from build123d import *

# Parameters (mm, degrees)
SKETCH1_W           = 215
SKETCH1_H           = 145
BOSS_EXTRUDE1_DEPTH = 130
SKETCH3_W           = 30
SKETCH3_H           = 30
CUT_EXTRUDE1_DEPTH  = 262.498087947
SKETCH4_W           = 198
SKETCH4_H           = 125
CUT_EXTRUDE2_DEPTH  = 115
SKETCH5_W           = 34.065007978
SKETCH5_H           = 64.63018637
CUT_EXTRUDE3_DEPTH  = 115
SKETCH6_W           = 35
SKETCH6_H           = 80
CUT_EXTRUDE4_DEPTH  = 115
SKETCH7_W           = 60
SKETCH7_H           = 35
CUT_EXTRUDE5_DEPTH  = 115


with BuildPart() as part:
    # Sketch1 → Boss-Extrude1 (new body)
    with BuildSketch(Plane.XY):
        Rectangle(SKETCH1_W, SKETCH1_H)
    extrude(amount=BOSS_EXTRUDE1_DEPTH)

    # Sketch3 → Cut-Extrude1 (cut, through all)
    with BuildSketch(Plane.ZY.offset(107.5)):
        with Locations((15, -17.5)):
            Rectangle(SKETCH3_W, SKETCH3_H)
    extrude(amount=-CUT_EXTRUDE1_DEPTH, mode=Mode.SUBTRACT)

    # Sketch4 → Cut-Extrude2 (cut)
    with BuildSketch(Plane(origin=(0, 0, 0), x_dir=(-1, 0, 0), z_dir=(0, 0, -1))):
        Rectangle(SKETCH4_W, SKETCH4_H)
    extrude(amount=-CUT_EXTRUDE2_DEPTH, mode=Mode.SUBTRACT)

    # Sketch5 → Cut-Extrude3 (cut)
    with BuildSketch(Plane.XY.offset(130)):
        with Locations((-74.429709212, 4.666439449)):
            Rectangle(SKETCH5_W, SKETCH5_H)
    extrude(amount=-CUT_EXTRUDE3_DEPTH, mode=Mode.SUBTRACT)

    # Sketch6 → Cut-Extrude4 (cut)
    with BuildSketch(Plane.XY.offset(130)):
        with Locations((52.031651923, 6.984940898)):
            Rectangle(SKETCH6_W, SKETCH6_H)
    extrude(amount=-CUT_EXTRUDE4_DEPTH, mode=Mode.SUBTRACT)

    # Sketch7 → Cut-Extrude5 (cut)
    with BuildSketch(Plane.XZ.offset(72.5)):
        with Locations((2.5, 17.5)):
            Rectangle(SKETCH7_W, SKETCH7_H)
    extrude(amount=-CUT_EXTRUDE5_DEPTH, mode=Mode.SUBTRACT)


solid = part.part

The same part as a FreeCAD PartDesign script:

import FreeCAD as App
import Part
import Sketcher
from FreeCAD import Vector


def add_polygon(sketch, points):
    """Adds a closed chain of lines whose ends are joined by coincident constraints."""
    first, n = sketch.GeometryCount, len(points)
    for a, b in zip(points, points[1:] + points[:1]):
        sketch.addGeometry(Part.LineSegment(App.Vector(*a, 0), App.Vector(*b, 0)), False)
    for i in range(n):
        sketch.addConstraint(Sketcher.Constraint("Coincident", first + i, 2, first + (i + 1) % n, 1))

doc = App.newDocument("Part")
body = doc.addObject("PartDesign::Body", "Body")

# Sketch on XY plane
sketch1 = body.newObject("Sketcher::SketchObject", "Sketch")
sketch1.AttachmentSupport = (doc.getObject("XY_Plane"), [""])
sketch1.MapMode = "FlatFace"
add_polygon(sketch1, [(-108, 72), (-108, -72), (108, -72), (108, 72)])  # lines 0-3
sketch1.addConstraint([
    Sketcher.Constraint("Vertical", 0),
    Sketcher.Constraint("Horizontal", 1),
    Sketcher.Constraint("Vertical", 2),
    Sketcher.Constraint("Horizontal", 3),
    Sketcher.Constraint("Symmetric", 0, 2, 2, 2, -1, 1),
    Sketcher.Constraint("DistanceX", 1, 1, 1, 2, 215.0),
    Sketcher.Constraint("DistanceY", 0, 2, 0, 1, 145.0),
])
pad1 = body.newObject("PartDesign::Pad", "Pad")
pad1.Profile = sketch1
pad1.Length = 130

# Sketch on YZ plane
sketch2 = body.newObject("Sketcher::SketchObject", "Sketch001")
sketch2.AttachmentSupport = (doc.getObject("YZ_Plane"), [""])
sketch2.MapMode = "FlatFace"
sketch2.AttachmentOffset = App.Placement(Vector(0, 0, -107.5), App.Rotation())
add_polygon(sketch2, [(-2, 0), (-32, 0), (-32, 30), (-2, 30)])  # lines 0-3
sketch2.addConstraint([
    Sketcher.Constraint("Horizontal", 0),
    Sketcher.Constraint("Vertical", 1),
    Sketcher.Constraint("Horizontal", 2),
    Sketcher.Constraint("Vertical", 3),
    Sketcher.Constraint("PointOnObject", 0, 2, -1),
    Sketcher.Constraint("Equal", 2, 1),
    Sketcher.Constraint("DistanceX", 0, 2, 0, 1, 30.0),
    Sketcher.Constraint("DistanceX", 0, 2, -1, 1, 32.5),
])
pocket1 = body.newObject("PartDesign::Pocket", "Pocket")
pocket1.Profile = sketch2
pocket1.Type = "ThroughAll"
pocket1.Reversed = True

# Sketch on XY plane
sketch3 = body.newObject("Sketcher::SketchObject", "Sketch002")
sketch3.AttachmentSupport = (doc.getObject("XY_Plane"), [""])
sketch3.MapMode = "FlatFace"
add_polygon(sketch3, [(99, 62), (99, -62), (-99, -62), (-99, 62)])  # lines 0-3
sketch3.addConstraint([
    Sketcher.Constraint("Vertical", 0),
    Sketcher.Constraint("Horizontal", 1),
    Sketcher.Constraint("Vertical", 2),
    Sketcher.Constraint("Horizontal", 3),
    Sketcher.Constraint("Symmetric", 0, 2, 2, 2, -1, 1),
    Sketcher.Constraint("DistanceX", 1, 2, 1, 1, 198.0),
    Sketcher.Constraint("DistanceY", 0, 2, 0, 1, 125.0),
])
pocket2 = body.newObject("PartDesign::Pocket", "Pocket001")
pocket2.Profile = sketch3
pocket2.Length = 115
pocket2.Reversed = True

# Sketch on XY plane
sketch4 = body.newObject("Sketcher::SketchObject", "Sketch003")
sketch4.AttachmentSupport = (doc.getObject("XY_Plane"), [""])
sketch4.MapMode = "FlatFace"
sketch4.AttachmentOffset = App.Placement(Vector(0, 0, 130), App.Rotation())
add_polygon(sketch4, [(-91, 37), (-91, -28), (-57, -28), (-57, 37)])  # lines 0-3
sketch4.addConstraint([
    Sketcher.Constraint("Vertical", 0),
    Sketcher.Constraint("Horizontal", 1),
    Sketcher.Constraint("Vertical", 2),
    Sketcher.Constraint("Horizontal", 3),
    Sketcher.Constraint("DistanceX", 1, 1, 1, 2, 34.065008),
    Sketcher.Constraint("DistanceY", 0, 2, 0, 1, 64.630186),
    Sketcher.Constraint("DistanceX", 0, 2, -1, 1, 91.462213),
    Sketcher.Constraint("DistanceY", 0, 2, -1, 1, 27.648654),
])
pocket3 = body.newObject("PartDesign::Pocket", "Pocket002")
pocket3.Profile = sketch4
pocket3.Length = 115

# Sketch on XY plane
sketch5 = body.newObject("Sketcher::SketchObject", "Sketch004")
sketch5.AttachmentSupport = (doc.getObject("XY_Plane"), [""])
sketch5.MapMode = "FlatFace"
sketch5.AttachmentOffset = App.Placement(Vector(0, 0, 130), App.Rotation())
add_polygon(sketch5, [(35, 47), (35, -33), (70, -33), (70, 47)])  # lines 0-3
sketch5.addConstraint([
    Sketcher.Constraint("Vertical", 0),
    Sketcher.Constraint("Horizontal", 1),
    Sketcher.Constraint("Vertical", 2),
    Sketcher.Constraint("Horizontal", 3),
    Sketcher.Constraint("DistanceX", 1, 1, 1, 2, 35.0),
    Sketcher.Constraint("DistanceY", 0, 2, 0, 1, 80.0),
    Sketcher.Constraint("DistanceX", -1, 1, 0, 2, 34.531652),
    Sketcher.Constraint("DistanceY", 0, 2, -1, 1, 33.015059),
])
pocket4 = body.newObject("PartDesign::Pocket", "Pocket003")
pocket4.Profile = sketch5
pocket4.Length = 115

# Sketch on XZ plane
sketch6 = body.newObject("Sketcher::SketchObject", "Sketch005")
sketch6.AttachmentSupport = (doc.getObject("XZ_Plane"), [""])
sketch6.MapMode = "FlatFace"
sketch6.AttachmentOffset = App.Placement(Vector(0, 0, 72.5), App.Rotation())
add_polygon(sketch6, [(-28, 35), (-28, 0), (32, 0), (32, 35)])  # lines 0-3
sketch6.addConstraint([
    Sketcher.Constraint("Vertical", 0),
    Sketcher.Constraint("Horizontal", 1),
    Sketcher.Constraint("Vertical", 2),
    Sketcher.Constraint("Horizontal", 3),
    Sketcher.Constraint("PointOnObject", 0, 2, -1),
    Sketcher.Constraint("DistanceX", 1, 1, 1, 2, 60.0),
    Sketcher.Constraint("DistanceY", 0, 2, 0, 1, 35.0),
    Sketcher.Constraint("DistanceX", 0, 2, -1, 1, 27.5),
])
pocket5 = body.newObject("PartDesign::Pocket", "Pocket004")
pocket5.Profile = sketch6
pocket5.Length = 115

doc.recompute()
